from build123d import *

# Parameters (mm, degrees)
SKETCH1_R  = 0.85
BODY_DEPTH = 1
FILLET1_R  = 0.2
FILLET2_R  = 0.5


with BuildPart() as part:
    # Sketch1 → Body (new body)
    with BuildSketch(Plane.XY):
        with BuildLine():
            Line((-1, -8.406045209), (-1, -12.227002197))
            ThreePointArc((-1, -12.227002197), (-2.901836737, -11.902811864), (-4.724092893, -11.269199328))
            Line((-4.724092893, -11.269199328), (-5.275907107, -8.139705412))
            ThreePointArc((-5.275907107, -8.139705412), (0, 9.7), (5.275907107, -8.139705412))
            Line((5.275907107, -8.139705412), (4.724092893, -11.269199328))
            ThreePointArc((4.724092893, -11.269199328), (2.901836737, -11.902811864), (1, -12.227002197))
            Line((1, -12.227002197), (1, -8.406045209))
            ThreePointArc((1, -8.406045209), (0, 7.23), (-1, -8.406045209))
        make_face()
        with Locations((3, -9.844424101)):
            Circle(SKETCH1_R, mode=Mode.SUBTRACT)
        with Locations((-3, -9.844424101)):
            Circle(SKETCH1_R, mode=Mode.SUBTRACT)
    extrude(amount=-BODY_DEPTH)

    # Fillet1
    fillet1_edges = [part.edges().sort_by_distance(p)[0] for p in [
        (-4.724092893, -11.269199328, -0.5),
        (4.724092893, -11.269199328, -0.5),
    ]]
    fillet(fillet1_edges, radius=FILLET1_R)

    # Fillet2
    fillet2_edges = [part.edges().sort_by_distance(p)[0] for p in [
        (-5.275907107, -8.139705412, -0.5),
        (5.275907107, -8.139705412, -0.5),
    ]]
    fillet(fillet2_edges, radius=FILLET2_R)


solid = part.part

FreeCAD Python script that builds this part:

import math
import FreeCAD as App
import Part
import Sketcher
from FreeCAD import Vector
Q = App.Units.Quantity


def edges_at(feature, points):
    """Names of the edges that pass closest to the given points."""
    edges = feature.Shape.Edges
    near = lambda p: min(range(len(edges)), key=lambda i: edges[i].distToShape(Part.Vertex(*p))[0])
    return sorted({f"Edge{near(p) + 1}" for p in points})

doc = App.newDocument("Part")
body = doc.addObject("PartDesign::Body", "Body")

sketch1 = doc.addObject("Sketcher::SketchObject", "Sketch")
body.addObject(sketch1)
sketch1.AttachmentSupport = (doc.XY_Plane, [""])
sketch1.MapMode = "FlatFace"
sketch1.addGeometry(Part.LineSegment(Vector(-1, -12.227002, 0), Vector(-1, -8.406045, 0)), False)
sketch1.addGeometry(Part.ArcOfCircle(Part.Circle(Vector(0, -0.62, 0), Vector(0, 0, 1), 7.85), math.radians(-82.681288), math.radians(262.681288)), False)
sketch1.addGeometry(Part.LineSegment(Vector(1, -8.406045, 0), Vector(1, -12.227002, 0)), False)
sketch1.addGeometry(Part.ArcOfCircle(Part.Circle(Vector(0, -0.62, 0), Vector(0, 0, 1), 11.65), math.radians(-85.075848), math.radians(-66.07744)), False)
sketch1.addGeometry(Part.LineSegment(Vector(4.724093, -11.269199, 0), Vector(5.275907, -8.139705, 0)), False)
sketch1.addGeometry(Part.ArcOfCircle(Part.Circle(Vector(0, 0, 0), Vector(0, 0, 1), 9.7), math.radians(-57.049932), math.radians(237.049932)), False)
sketch1.addGeometry(Part.LineSegment(Vector(-5.275907, -8.139705, 0), Vector(-4.724093, -11.269199, 0)), False)
sketch1.addGeometry(Part.ArcOfCircle(Part.Circle(Vector(0, -0.62, 0), Vector(0, 0, 1), 11.65), math.radians(-113.92256), math.radians(-94.924152)), False)
sketch1.addGeometry(Part.Circle(Vector(3, -9.844424, 0), Vector(0, 0, 1), 0.85), False)
sketch1.addGeometry(Part.Circle(Vector(-3, -9.844424, 0), Vector(0, 0, 1), 0.85), False)
sketch1.addConstraint(Sketcher.Constraint("Coincident", 0, 2, 1, 2))
sketch1.addConstraint(Sketcher.Constraint("Coincident", 1, 1, 2, 1))
sketch1.addConstraint(Sketcher.Constraint("Coincident", 2, 2, 3, 1))
sketch1.addConstraint(Sketcher.Constraint("Coincident", 3, 2, 4, 1))
sketch1.addConstraint(Sketcher.Constraint("Coincident", 4, 2, 5, 1))
sketch1.addConstraint(Sketcher.Constraint("Coincident", 5, 2, 6, 1))
sketch1.addConstraint(Sketcher.Constraint("Coincident", 6, 2, 7, 1))
sketch1.addConstraint(Sketcher.Constraint("Coincident", 7, 2, 0, 1))
sketch1.addConstraint(Sketcher.Constraint("Vertical", 0))
sketch1.addConstraint(Sketcher.Constraint("Vertical", 2))
sketch1.addConstraint(Sketcher.Constraint("Coincident", 5, 3, -1, 1))
sketch1.addConstraint(Sketcher.Constraint("Coincident", 3, 3, 1, 3))
sketch1.addConstraint(Sketcher.Constraint("Coincident", 7, 3, 1, 3))
sketch1.addConstraint(Sketcher.Constraint("Equal", 3, 7))
sketch1.addConstraint(Sketcher.Constraint("Equal", 8, 9))
sketch1.addConstraint(Sketcher.Constraint("Symmetric", 8, 3, 9, 3, -2))
sketch1.addConstraint(Sketcher.Constraint("Symmetric", 0, 2, 1, 1, -2))
sketch1.addConstraint(Sketcher.Constraint("Horizontal", 4, 2, 5, 2))
sketch1.addConstraint(Sketcher.Constraint("Horizontal", 3, 2, 6, 2))
sketch1.addConstraint(Sketcher.Constraint("Diameter", 8, 1.7))
sketch1.addConstraint(Sketcher.Constraint("Radius", 5, 9.7))
sketch1.addConstraint(Sketcher.Constraint("Angle", 4, Q("80 deg")))
sketch1.addConstraint(Sketcher.Constraint("Radius", 1, 7.85))
sketch1.addConstraint(Sketcher.Constraint("Radius", 3, 11.65))
sketch1.addConstraint(Sketcher.Constraint("DistanceX", -1, 1, 8, 3, 3.0))
sketch1.addConstraint(Sketcher.Constraint("DistanceX", 0, 2, -1, 1, 1.0))
sketch1.addConstraint(Sketcher.Constraint("DistanceY", 1, 3, -1, 1, 0.62))
sketch1.addConstraint(Sketcher.Constraint("DistanceY", 3, 2, -1, 1, 11.269199))
sketch1.addConstraint(Sketcher.Constraint("DistanceY", 9, 3, 0, 2, 1.438379))
pad1 = doc.addObject("PartDesign::Pad", "Pad")
body.addObject(pad1)
pad1.Profile = sketch1
pad1.Length = 1
pad1.Reversed = True
doc.recompute()

fillet = doc.addObject("PartDesign::Fillet", "Fillet")
body.addObject(fillet)
fillet.Base = (pad1, edges_at(pad1, [(-4.724, -11.269, -0.5), (4.724, -11.269, -0.5)]))
fillet.Radius = 0.2
doc.recompute()

fillet2 = doc.addObject("PartDesign::Fillet", "Fillet001")
body.addObject(fillet2)
fillet2.Base = (fillet, edges_at(fillet, [(-5.276, -8.14, -0.5), (5.276, -8.14, -0.5)]))
fillet2.Radius = 0.5

doc.recompute()
